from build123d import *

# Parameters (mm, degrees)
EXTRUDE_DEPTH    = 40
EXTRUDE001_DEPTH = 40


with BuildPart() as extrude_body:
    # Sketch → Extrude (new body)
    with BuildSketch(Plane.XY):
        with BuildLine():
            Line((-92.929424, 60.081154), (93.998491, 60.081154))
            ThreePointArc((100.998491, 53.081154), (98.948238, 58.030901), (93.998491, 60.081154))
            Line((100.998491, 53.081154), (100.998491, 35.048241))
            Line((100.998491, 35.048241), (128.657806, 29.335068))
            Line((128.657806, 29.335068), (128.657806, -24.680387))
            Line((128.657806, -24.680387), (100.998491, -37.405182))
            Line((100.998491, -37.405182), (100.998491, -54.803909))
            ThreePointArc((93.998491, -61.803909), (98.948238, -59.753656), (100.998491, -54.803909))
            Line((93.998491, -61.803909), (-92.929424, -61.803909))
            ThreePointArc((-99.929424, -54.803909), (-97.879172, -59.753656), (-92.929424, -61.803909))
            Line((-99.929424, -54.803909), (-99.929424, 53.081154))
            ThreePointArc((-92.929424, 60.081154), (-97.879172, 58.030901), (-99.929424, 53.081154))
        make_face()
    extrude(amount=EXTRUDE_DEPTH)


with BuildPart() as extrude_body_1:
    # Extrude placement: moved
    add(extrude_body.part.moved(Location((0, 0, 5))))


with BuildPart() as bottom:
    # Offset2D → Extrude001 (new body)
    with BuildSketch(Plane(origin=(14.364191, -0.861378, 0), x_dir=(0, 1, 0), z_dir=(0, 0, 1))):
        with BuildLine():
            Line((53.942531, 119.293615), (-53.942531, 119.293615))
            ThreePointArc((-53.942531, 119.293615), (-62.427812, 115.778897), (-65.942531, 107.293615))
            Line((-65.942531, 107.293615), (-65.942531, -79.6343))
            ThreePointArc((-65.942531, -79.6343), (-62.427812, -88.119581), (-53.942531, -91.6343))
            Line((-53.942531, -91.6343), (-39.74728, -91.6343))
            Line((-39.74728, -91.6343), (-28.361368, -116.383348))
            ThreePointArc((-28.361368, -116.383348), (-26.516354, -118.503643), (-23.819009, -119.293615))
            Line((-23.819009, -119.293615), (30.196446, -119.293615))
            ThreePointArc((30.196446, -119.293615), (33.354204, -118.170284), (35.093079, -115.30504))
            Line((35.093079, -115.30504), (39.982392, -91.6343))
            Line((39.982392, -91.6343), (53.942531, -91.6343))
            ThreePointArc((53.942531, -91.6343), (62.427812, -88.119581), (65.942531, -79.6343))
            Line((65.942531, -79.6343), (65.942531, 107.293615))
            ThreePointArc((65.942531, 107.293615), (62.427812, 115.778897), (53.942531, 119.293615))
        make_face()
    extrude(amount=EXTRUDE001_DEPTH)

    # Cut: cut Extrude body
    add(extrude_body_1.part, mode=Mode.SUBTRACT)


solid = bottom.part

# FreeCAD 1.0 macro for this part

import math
import FreeCAD as App
import Part
import Sketcher
from FreeCAD import Vector
Q = App.Units.Quantity

doc = App.newDocument("Part")
body = doc.addObject("PartDesign::Body", "Body")

sketch1 = body.newObject("Sketcher::SketchObject", "Sketch")
sketch1.AttachmentSupport = (doc.getObject("XY_Plane"), [""])
sketch1.MapMode = "FlatFace"
sketch1.addGeometry(Part.LineSegment(Vector(93.998491, 60.081154, 0), Vector(-92.929424, 60.081154, 0)), False)
sketch1.addGeometry(Part.ArcOfCircle(Part.Circle(Vector(-92.929424, 53.081154, 0), Vector(0, 0, 1), 7), math.radians(89.999999), math.radians(180.000001)), False)
sketch1.addGeometry(Part.LineSegment(Vector(-99.929424, 53.081154, 0), Vector(-99.929424, -54.803909, 0)), False)
sketch1.addGeometry(Part.ArcOfCircle(Part.Circle(Vector(-92.929424, -54.803909, 0), Vector(0, 0, 1), 7), math.radians(179.999999), math.radians(270.000001)), False)
sketch1.addGeometry(Part.LineSegment(Vector(-92.929424, -61.803909, 0), Vector(93.998491, -61.803909, 0)), False)
sketch1.addGeometry(Part.ArcOfCircle(Part.Circle(Vector(93.998489, -54.803907, 0), Vector(0, 0, 1), 7.000002), math.radians(-89.999987), math.radians(-0.000013)), False)
sketch1.addGeometry(Part.LineSegment(Vector(100.998491, -54.803909, 0), Vector(100.998491, -37.405182, 0)), False)
sketch1.addGeometry(Part.LineSegment(Vector(100.998491, -37.405182, 0), Vector(128.657806, -24.680387, 0)), False)
sketch1.addGeometry(Part.LineSegment(Vector(128.657806, -24.680387, 0), Vector(128.657806, 29.335068, 0)), False)
sketch1.addGeometry(Part.LineSegment(Vector(128.657806, 29.335068, 0), Vector(100.998491, 35.048241, 0)), False)
sketch1.addGeometry(Part.LineSegment(Vector(100.998491, 35.048241, 0), Vector(100.998491, 53.081154, 0)), False)
sketch1.addGeometry(Part.ArcOfCircle(Part.Circle(Vector(93.998489, 53.081152, 0), Vector(0, 0, 1), 7.000002), math.radians(0.000013), math.radians(89.999987)), False)
sketch1.addConstraint(Sketcher.Constraint("Tangent", 0, 2, 1, 1))
sketch1.addConstraint(Sketcher.Constraint("Tangent", 1, 2, 2, 1))
sketch1.addConstraint(Sketcher.Constraint("Tangent", 2, 2, 3, 1))
sketch1.addConstraint(Sketcher.Constraint("Tangent", 3, 2, 4, 1))
sketch1.addConstraint(Sketcher.Constraint("Tangent", 4, 2, 5, 1))
sketch1.addConstraint(Sketcher.Constraint("Tangent", 5, 2, 6, 1))
sketch1.addConstraint(Sketcher.Constraint("Coincident", 6, 2, 7, 1))
sketch1.addConstraint(Sketcher.Constraint("Coincident", 7, 2, 8, 1))
sketch1.addConstraint(Sketcher.Constraint("Coincident", 8, 2, 9, 1))
sketch1.addConstraint(Sketcher.Constraint("Coincident", 9, 2, 10, 1))
sketch1.addConstraint(Sketcher.Constraint("Tangent", 10, 2, 11, 1))
sketch1.addConstraint(Sketcher.Constraint("Tangent", 11, 2, 0, 1))
sketch1.addConstraint(Sketcher.Constraint("Horizontal", 0))
sketch1.addConstraint(Sketcher.Constraint("Vertical", 2))
sketch1.addConstraint(Sketcher.Constraint("Horizontal", 4))
sketch1.addConstraint(Sketcher.Constraint("Vertical", 6))
sketch1.addConstraint(Sketcher.Constraint("Vertical", 8))
sketch1.addConstraint(Sketcher.Constraint("Vertical", 10))
sketch1.addConstraint(Sketcher.Constraint("Equal", 1, 3))
sketch1.addConstraint(Sketcher.Constraint("Equal", 3, 5))
sketch1.addConstraint(Sketcher.Constraint("Equal", 5, 11))
sketch1.addConstraint(Sketcher.Constraint("Vertical", 5, 3, 11, 3))
sketch1.addConstraint(Sketcher.Constraint("Radius", 1, Q("7 mm")))
sketch1.addConstraint(Sketcher.Constraint("DistanceX", 0, 2, 0, 1, Q("186.927915 mm")))
sketch1.addConstraint(Sketcher.Constraint("DistanceY", 2, 2, 2, 1, Q("107.885063 mm")))
sketch1.addConstraint(Sketcher.Constraint("DistanceY", 6, 1, 6, 2, Q("17.398727 mm")))
sketch1.addConstraint(Sketcher.Constraint("DistanceY", 8, 1, 8, 2, Q("54.015455 mm")))
sketch1.addConstraint(Sketcher.Constraint("DistanceY", 10, 1, 10, 2, Q("18.032913 mm")))
sketch1.addConstraint(Sketcher.Constraint("DistanceY", 3, 3, -1, 1, Q("54.803909 mm")))
sketch1.addConstraint(Sketcher.Constraint("DistanceX", -1, 1, 5, 3, Q("93.998489 mm")))
sketch1.addConstraint(Sketcher.Constraint("DistanceY", 5, 2, 7, 2, Q("30.123522 mm")))
sketch1.addConstraint(Sketcher.Constraint("Distance", 7, Q("30.445987 mm")))
pad1 = body.newObject("PartDesign::Pad", "Pad")
pad1.Profile = sketch1
pad1.Length = 40
body2 = doc.addObject("PartDesign::Body", "Body001")
doc.recompute()

body.Placement = App.Placement(Vector(0, 0, 5), App.Rotation(Vector(0, 0, 1), 0))
boolean = body2.newObject("PartDesign::Boolean", "Boolean")
boolean.Type = "Fuse"
boolean.addObjects([body])
body3 = doc.addObject("PartDesign::Body", "Body002")

sketch2 = body3.newObject("Sketcher::SketchObject", "Sketch001")
sketch2.AttachmentSupport = (doc.getObject("XY_Plane002"), [""])
sketch2.MapMode = "FlatFace"
sketch2.addGeometry(Part.LineSegment(Vector(-104.929424, 53.081153, 0), Vector(-104.929424, -54.803909, 0)), False)
sketch2.addGeometry(Part.ArcOfCircle(Part.Circle(Vector(-92.929424, -54.803909, 0), Vector(0, 0, 1), 12), math.radians(179.999998), math.radians(270.000002)), False)
sketch2.addGeometry(Part.LineSegment(Vector(-92.929424, -66.803909, 0), Vector(93.998491, -66.803909, 0)), False)
sketch2.addGeometry(Part.ArcOfCircle(Part.Circle(Vector(93.99849, -54.803908, 0), Vector(0, 0, 1), 12.000001), math.radians(-89.999994), math.radians(-0.000006)), False)
sketch2.addGeometry(Part.LineSegment(Vector(105.998491, -54.803909, 0), Vector(105.998491, -40.608658, 0)), False)
sketch2.addGeometry(Part.LineSegment(Vector(105.998491, -40.608658, 0), Vector(130.747539, -29.222746, 0)), False)
sketch2.addGeometry(Part.ArcOfCircle(Part.Circle(Vector(128.657806, -24.680388, 0), Vector(0, 0, 1), 5), math.radians(-65.294986), math.radians(0.000013)), False)
sketch2.addGeometry(Part.LineSegment(Vector(133.657806, -24.680387, 0), Vector(133.657806, 29.335068, 0)), False)
sketch2.addGeometry(Part.ArcOfCircle(Part.Circle(Vector(128.657806, 29.335068, 0), Vector(0, 0, 1), 5), math.radians(0.000002), math.radians(78.329392)), False)
sketch2.addGeometry(Part.LineSegment(Vector(129.669231, 34.231701, 0), Vector(105.998491, 39.121014, 0)), False)
sketch2.addGeometry(Part.LineSegment(Vector(105.998491, 39.121014, 0), Vector(105.998491, 53.081153, 0)), False)
sketch2.addGeometry(Part.ArcOfCircle(Part.Circle(Vector(93.99849, 53.081152, 0), Vector(0, 0, 1), 12.000001), math.radians(0.000006), math.radians(89.999994)), False)
sketch2.addGeometry(Part.LineSegment(Vector(93.998491, 65.081153, 0), Vector(-92.929424, 65.081153, 0)), False)
sketch2.addGeometry(Part.ArcOfCircle(Part.Circle(Vector(-92.929424, 53.081153, 0), Vector(0, 0, 1), 12), math.radians(89.999998), math.radians(180.000002)), False)
sketch2.addConstraint(Sketcher.Constraint("Tangent", 0, 2, 1, 1))
sketch2.addConstraint(Sketcher.Constraint("Tangent", 1, 2, 2, 1))
sketch2.addConstraint(Sketcher.Constraint("Tangent", 2, 2, 3, 1))
sketch2.addConstraint(Sketcher.Constraint("Tangent", 3, 2, 4, 1))
sketch2.addConstraint(Sketcher.Constraint("Coincident", 4, 2, 5, 1))
sketch2.addConstraint(Sketcher.Constraint("Tangent", 5, 2, 6, 1))
sketch2.addConstraint(Sketcher.Constraint("Tangent", 6, 2, 7, 1))
sketch2.addConstraint(Sketcher.Constraint("Tangent", 7, 2, 8, 1))
sketch2.addConstraint(Sketcher.Constraint("Tangent", 8, 2, 9, 1))
sketch2.addConstraint(Sketcher.Constraint("Coincident", 9, 2, 10, 1))
sketch2.addConstraint(Sketcher.Constraint("Tangent", 10, 2, 11, 1))
sketch2.addConstraint(Sketcher.Constraint("Tangent", 11, 2, 12, 1))
sketch2.addConstraint(Sketcher.Constraint("Tangent", 12, 2, 13, 1))
sketch2.addConstraint(Sketcher.Constraint("Tangent", 13, 2, 0, 1))
sketch2.addConstraint(Sketcher.Constraint("Vertical", 0))
sketch2.addConstraint(Sketcher.Constraint("Horizontal", 2))
sketch2.addConstraint(Sketcher.Constraint("Vertical", 4))
sketch2.addConstraint(Sketcher.Constraint("Vertical", 7))
sketch2.addConstraint(Sketcher.Constraint("Vertical", 10))
sketch2.addConstraint(Sketcher.Constraint("Horizontal", 12))
sketch2.addConstraint(Sketcher.Constraint("Equal", 1, 3))
sketch2.addConstraint(Sketcher.Constraint("Equal", 6, 8))
sketch2.addConstraint(Sketcher.Constraint("Equal", 3, 11))
sketch2.addConstraint(Sketcher.Constraint("Equal", 11, 13))
sketch2.addConstraint(Sketcher.Constraint("Vertical", 3, 3, 11, 3))
sketch2.addConstraint(Sketcher.Constraint("Radius", 1, Q("12 mm")))
sketch2.addConstraint(Sketcher.Constraint("Radius", 6, Q("5 mm")))
sketch2.addConstraint(Sketcher.Constraint("DistanceY", 4, 1, 4, 2, Q("14.195251 mm")))
sketch2.addConstraint(Sketcher.Constraint("DistanceY", 10, 1, 10, 2, Q("13.960139 mm")))
sketch2.addConstraint(Sketcher.Constraint("DistanceY", -1, 1, 8, 2, Q("34.231701 mm")))
sketch2.addConstraint(Sketcher.Constraint("Distance", 5, Q("27.24251 mm")))
sketch2.addConstraint(Sketcher.Constraint("DistanceX", 2, 1, 2, 2, Q("186.927915 mm")))
sketch2.addConstraint(Sketcher.Constraint("DistanceY", 0, 2, 0, 1, Q("107.885062 mm")))
sketch2.addConstraint(Sketcher.Constraint("DistanceY", 7, 1, 7, 2, Q("54.015455 mm")))
sketch2.addConstraint(Sketcher.Constraint("DistanceY", 1, 3, -1, 1, Q("54.803909 mm")))
sketch2.addConstraint(Sketcher.Constraint("DistanceX", -1, 1, 3, 3, Q("93.99849 mm")))
pad2 = body3.newObject("PartDesign::Pad", "Pad001")
pad2.Profile = sketch2
pad2.Length = 40
doc.recompute()

boolean2 = body3.newObject("PartDesign::Boolean", "Boolean001")
boolean2.Type = "Cut"
boolean2.addObjects([body2])

doc.recompute()
